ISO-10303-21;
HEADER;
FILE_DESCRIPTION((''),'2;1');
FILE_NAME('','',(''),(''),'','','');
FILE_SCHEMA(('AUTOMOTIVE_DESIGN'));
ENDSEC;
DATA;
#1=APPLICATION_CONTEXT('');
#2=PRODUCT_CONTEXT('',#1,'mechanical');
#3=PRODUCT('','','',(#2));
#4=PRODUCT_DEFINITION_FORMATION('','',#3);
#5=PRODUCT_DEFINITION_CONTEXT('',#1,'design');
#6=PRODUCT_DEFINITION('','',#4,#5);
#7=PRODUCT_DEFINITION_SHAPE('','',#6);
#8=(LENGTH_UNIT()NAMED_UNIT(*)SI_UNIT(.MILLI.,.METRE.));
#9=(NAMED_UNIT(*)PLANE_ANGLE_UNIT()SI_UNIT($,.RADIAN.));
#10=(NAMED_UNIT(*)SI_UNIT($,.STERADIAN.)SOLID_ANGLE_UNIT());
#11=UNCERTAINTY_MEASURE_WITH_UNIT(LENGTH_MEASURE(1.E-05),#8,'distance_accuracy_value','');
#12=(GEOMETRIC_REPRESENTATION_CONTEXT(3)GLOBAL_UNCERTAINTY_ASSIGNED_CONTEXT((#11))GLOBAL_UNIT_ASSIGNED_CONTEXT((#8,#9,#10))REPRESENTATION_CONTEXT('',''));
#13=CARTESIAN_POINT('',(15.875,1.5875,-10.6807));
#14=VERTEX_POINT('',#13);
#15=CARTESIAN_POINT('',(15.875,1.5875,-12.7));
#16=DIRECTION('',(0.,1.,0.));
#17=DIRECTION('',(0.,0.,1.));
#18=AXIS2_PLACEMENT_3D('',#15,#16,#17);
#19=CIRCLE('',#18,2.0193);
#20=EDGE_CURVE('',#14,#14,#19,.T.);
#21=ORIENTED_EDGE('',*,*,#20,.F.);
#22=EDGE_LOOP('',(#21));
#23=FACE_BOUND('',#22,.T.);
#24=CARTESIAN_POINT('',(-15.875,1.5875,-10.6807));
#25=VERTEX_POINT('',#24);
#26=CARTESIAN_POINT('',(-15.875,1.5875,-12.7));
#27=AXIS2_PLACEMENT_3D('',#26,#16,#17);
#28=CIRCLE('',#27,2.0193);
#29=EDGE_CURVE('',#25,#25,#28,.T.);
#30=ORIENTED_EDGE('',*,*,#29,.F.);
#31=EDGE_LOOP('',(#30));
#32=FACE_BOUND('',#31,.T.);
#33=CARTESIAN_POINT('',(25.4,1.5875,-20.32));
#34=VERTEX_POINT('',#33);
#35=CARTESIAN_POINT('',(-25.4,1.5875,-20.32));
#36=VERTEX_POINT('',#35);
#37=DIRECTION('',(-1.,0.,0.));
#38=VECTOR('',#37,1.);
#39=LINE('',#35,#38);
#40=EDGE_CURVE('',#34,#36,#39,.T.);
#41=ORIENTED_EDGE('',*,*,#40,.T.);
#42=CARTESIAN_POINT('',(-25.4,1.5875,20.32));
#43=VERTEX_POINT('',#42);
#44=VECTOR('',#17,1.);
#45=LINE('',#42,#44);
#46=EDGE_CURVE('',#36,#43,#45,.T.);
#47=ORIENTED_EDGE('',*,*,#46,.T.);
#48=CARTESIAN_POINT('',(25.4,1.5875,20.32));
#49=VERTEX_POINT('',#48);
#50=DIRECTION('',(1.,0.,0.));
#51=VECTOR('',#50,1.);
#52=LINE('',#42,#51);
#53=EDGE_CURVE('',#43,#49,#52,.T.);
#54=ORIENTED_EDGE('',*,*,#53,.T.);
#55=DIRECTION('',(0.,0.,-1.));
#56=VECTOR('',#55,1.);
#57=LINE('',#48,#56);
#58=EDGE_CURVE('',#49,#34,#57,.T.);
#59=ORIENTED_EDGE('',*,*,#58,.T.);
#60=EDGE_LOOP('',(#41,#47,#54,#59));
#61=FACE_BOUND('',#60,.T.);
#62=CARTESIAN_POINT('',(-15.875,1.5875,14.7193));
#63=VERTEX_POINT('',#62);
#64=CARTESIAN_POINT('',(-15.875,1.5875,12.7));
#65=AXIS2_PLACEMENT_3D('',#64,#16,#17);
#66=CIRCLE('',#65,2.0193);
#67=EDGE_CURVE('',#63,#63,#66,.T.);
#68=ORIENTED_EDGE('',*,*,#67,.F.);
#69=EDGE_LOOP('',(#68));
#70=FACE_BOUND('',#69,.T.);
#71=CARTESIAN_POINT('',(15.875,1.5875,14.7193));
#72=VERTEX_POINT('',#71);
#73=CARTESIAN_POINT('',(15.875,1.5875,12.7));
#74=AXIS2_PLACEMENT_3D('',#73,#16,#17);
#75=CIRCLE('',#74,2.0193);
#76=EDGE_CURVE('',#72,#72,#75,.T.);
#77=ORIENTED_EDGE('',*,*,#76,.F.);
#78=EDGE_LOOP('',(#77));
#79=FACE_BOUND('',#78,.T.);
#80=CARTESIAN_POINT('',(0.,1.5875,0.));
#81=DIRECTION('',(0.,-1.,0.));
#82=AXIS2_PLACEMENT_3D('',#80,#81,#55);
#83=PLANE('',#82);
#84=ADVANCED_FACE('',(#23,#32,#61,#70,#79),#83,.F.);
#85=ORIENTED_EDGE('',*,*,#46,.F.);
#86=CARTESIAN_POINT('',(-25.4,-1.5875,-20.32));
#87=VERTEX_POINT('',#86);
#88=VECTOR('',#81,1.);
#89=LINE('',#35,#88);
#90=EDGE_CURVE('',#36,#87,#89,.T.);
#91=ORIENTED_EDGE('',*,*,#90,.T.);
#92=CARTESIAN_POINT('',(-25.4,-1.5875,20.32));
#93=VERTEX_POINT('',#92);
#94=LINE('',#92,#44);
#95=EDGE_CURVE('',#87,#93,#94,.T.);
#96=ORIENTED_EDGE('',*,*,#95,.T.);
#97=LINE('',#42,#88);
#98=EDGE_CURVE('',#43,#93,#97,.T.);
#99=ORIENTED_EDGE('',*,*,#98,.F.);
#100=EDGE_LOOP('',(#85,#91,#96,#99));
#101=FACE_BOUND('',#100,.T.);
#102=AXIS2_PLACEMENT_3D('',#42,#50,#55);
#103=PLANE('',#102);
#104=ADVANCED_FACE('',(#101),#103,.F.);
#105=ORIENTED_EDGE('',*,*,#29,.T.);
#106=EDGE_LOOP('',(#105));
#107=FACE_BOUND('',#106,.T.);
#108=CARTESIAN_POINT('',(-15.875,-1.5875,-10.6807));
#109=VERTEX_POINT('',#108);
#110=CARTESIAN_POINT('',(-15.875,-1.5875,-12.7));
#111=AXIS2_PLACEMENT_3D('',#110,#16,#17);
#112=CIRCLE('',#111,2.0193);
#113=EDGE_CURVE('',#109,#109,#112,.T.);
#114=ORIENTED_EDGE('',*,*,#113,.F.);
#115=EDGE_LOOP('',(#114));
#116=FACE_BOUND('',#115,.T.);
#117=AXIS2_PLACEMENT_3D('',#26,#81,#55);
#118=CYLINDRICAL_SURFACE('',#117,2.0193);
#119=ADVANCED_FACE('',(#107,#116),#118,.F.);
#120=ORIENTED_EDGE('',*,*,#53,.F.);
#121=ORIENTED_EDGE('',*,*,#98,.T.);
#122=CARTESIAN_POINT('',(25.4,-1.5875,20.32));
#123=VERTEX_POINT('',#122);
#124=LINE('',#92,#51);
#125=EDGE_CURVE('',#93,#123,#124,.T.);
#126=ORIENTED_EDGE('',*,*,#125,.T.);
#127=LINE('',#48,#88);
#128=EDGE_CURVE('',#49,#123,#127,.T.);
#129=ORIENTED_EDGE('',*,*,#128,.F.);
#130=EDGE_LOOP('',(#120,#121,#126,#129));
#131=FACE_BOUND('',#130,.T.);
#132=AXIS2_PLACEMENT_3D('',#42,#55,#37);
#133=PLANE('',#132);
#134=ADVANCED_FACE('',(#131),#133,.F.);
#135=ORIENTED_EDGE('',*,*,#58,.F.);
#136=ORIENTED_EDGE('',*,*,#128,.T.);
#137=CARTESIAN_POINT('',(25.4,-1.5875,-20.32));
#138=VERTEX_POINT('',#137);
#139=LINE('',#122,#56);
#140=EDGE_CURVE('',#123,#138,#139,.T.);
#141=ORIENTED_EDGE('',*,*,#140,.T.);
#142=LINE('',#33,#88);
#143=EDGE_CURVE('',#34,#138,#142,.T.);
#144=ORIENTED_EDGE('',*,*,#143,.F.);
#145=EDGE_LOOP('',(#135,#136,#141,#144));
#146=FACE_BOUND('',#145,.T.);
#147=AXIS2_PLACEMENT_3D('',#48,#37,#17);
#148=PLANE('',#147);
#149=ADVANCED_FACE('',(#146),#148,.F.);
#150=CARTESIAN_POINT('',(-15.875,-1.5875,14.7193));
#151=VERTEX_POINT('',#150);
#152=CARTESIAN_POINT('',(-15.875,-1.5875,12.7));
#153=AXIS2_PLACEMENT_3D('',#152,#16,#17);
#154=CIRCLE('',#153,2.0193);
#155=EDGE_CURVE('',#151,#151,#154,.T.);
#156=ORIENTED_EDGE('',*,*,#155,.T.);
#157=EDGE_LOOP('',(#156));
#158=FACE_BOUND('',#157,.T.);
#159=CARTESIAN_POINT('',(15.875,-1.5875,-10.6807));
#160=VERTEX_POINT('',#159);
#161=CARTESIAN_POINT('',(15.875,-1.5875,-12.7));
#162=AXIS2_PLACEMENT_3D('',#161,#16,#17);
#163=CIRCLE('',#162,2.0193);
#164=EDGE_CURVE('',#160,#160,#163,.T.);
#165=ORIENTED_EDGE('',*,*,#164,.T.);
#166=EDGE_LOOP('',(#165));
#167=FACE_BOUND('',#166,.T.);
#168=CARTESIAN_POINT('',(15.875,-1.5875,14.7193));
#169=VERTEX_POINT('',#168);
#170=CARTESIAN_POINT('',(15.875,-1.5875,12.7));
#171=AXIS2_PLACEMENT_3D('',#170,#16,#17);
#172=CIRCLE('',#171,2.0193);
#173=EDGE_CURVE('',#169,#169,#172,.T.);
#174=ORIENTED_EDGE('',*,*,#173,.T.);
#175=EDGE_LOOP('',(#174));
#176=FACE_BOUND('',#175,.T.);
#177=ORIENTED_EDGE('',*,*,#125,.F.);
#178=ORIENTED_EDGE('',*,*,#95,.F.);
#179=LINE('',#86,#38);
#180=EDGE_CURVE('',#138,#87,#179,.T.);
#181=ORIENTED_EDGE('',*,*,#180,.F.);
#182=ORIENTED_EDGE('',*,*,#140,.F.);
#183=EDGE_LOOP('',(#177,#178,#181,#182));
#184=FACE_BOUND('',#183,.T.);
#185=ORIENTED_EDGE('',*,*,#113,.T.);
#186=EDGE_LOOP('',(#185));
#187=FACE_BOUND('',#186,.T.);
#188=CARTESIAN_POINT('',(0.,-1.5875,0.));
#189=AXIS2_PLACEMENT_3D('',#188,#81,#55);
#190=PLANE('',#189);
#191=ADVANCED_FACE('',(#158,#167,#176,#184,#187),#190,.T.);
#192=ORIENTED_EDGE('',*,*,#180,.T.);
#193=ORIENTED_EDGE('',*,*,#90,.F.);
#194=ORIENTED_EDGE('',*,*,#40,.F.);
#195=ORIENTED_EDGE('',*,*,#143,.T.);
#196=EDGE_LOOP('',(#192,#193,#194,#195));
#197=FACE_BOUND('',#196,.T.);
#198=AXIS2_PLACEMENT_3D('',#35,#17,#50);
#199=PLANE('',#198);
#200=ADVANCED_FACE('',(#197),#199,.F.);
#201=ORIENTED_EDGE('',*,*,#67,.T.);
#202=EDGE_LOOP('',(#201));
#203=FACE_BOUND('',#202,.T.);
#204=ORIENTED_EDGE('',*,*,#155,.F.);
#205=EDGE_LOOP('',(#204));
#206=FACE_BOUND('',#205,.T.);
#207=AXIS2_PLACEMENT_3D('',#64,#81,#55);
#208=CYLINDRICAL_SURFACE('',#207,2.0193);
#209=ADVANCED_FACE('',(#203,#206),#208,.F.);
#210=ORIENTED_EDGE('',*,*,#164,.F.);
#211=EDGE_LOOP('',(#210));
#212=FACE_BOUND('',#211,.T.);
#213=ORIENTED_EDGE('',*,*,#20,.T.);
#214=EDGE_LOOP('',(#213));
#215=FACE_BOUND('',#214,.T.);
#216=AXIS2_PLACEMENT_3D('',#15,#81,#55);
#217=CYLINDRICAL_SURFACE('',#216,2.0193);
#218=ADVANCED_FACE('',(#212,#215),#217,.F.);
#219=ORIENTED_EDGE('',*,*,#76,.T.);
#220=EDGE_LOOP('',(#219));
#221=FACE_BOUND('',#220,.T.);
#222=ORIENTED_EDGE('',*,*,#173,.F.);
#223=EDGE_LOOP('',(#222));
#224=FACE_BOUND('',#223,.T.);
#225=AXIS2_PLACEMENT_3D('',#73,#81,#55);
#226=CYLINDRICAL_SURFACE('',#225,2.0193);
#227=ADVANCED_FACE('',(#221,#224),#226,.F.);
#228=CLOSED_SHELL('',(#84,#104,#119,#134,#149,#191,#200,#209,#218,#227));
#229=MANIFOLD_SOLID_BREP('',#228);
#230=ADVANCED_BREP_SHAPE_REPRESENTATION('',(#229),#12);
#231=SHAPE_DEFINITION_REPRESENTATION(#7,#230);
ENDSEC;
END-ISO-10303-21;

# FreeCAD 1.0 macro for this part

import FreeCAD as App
import Part
import Sketcher
from FreeCAD import Vector
Q = App.Units.Quantity


def add_polygon(sketch, points):
    """Adds a closed chain of lines whose ends are joined by coincident constraints."""
    first, n = sketch.GeometryCount, len(points)
    for a, b in zip(points, points[1:] + points[:1]):
        sketch.addGeometry(Part.LineSegment(App.Vector(*a, 0), App.Vector(*b, 0)), False)
    for i in range(n):
        sketch.addConstraint(Sketcher.Constraint("Coincident", first + i, 2, first + (i + 1) % n, 1))

doc = App.newDocument("Part")
body = doc.addObject("PartDesign::Body", "Body")

# Sketch on XZ plane
sketch1 = body.newObject("Sketcher::SketchObject", "Sketch")
sketch1.AttachmentSupport = (doc.getObject("XZ_Plane"), [""])
sketch1.MapMode = "FlatFace"
add_polygon(sketch1, [(-25.4, -20.32), (-25.4, 20.32), (25.4, 20.32), (25.4, -20.32)])  # lines 0-3
sketch1.addGeometry(Part.Circle(Vector(-15.875, 12.7, 0), Vector(0, 0, 1), 2.0193), False)  # 4
sketch1.addGeometry(Part.Circle(Vector(15.875, 12.7, 0), Vector(0, 0, 1), 2.0193), False)  # 5
sketch1.addGeometry(Part.Circle(Vector(-15.875, -12.7, 0), Vector(0, 0, 1), 2.0193), False)  # 6
sketch1.addGeometry(Part.Circle(Vector(15.875, -12.7, 0), Vector(0, 0, 1), 2.0193), False)  # 7
sketch1.addConstraint([
    Sketcher.Constraint("Vertical", 0),
    Sketcher.Constraint("Horizontal", 1),
    Sketcher.Constraint("Vertical", 2),
    Sketcher.Constraint("Horizontal", 3),
    Sketcher.Constraint("Equal", 4, 5),
    Sketcher.Constraint("Equal", 5, 6),
    Sketcher.Constraint("Equal", 6, 7),
    Sketcher.Constraint("Symmetric", 5, 3, 6, 3, -1, 1),
    Sketcher.Constraint("Symmetric", 4, 3, 7, 3, -1, 1),
    Sketcher.Constraint("Symmetric", 0, 2, 2, 2, -1, 1),
    Sketcher.Constraint("Symmetric", 4, 3, 5, 3, -2),
    Sketcher.Constraint("DistanceX", 1, 1, 1, 2, Q("2 in")),
    Sketcher.Constraint("Diameter", 4, Q("0.159 in")),
    Sketcher.Constraint("DistanceY", 0, 1, 0, 2, Q("1.6 in")),
    Sketcher.Constraint("DistanceY", 6, 3, 4, 3, Q("1 in")),
    Sketcher.Constraint("DistanceX", 4, 3, 5, 3, Q("1.25 in")),
])
pad1 = body.newObject("PartDesign::Pad", "Pad")
pad1.Profile = sketch1
pad1.Length = Q("0.125 in")
pad1.Midplane = True

doc.recompute()
